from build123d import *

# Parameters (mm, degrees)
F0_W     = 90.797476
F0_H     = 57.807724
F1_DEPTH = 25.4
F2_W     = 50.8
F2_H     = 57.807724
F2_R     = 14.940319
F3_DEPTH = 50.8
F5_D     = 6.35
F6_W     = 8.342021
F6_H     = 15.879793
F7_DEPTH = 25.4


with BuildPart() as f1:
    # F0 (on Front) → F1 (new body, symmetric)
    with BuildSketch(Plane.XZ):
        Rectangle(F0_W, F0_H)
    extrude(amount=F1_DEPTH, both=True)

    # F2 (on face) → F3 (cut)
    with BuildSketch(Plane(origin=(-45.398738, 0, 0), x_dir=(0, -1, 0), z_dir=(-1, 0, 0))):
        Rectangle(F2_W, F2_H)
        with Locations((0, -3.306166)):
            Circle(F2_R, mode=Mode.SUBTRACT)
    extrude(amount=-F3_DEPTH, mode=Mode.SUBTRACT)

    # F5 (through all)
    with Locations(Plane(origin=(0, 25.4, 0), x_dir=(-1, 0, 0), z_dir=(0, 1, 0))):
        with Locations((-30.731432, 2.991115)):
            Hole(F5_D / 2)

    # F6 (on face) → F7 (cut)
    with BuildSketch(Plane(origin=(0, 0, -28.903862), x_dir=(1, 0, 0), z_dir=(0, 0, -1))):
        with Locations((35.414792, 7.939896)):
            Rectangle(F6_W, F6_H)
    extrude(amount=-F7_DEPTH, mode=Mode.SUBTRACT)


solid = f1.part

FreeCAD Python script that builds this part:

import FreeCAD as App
import Part
import Sketcher
Q = App.Units.Quantity

doc = App.newDocument("Part")
body = doc.addObject("PartDesign::Body", "Body")

# Sketch on XZ plane
sketch1 = doc.addObject("Sketcher::SketchObject", "Sketch")
body.addObject(sketch1)
sketch1.AttachmentSupport = (doc.XZ_Plane, [""])
sketch1.MapMode = "FlatFace"
sketch1.addGeometry([
    Part.LineSegment(App.Vector(-45, 29, 0), App.Vector(-45, -29, 0)),
    Part.LineSegment(App.Vector(-45, -29, 0), App.Vector(45, -29, 0)),
    Part.LineSegment(App.Vector(45, -29, 0), App.Vector(45, 29, 0)),
    Part.LineSegment(App.Vector(45, 29, 0), App.Vector(-45, 29, 0)),
], False)
sketch1.addConstraint([
    Sketcher.Constraint("Coincident", 0, 2, 1, 1),
    Sketcher.Constraint("Coincident", 1, 2, 2, 1),
    Sketcher.Constraint("Coincident", 2, 2, 3, 1),
    Sketcher.Constraint("Coincident", 3, 2, 0, 1),
    Sketcher.Constraint("Vertical", 0),
    Sketcher.Constraint("Horizontal", 1),
    Sketcher.Constraint("Vertical", 2),
    Sketcher.Constraint("Horizontal", 3),
    Sketcher.Constraint("Symmetric", 0, 2, 2, 2, -1, 1),
    Sketcher.Constraint("DistanceX", 1, 1, 1, 2, 90.797476),
    Sketcher.Constraint("DistanceY", 0, 2, 0, 1, 57.807724),
])
pad1 = doc.addObject("PartDesign::Pad", "Pad")
body.addObject(pad1)
pad1.Profile = sketch1
pad1.Length = Q("2 in")
pad1.Midplane = True

# Sketch on YZ plane
sketch2 = doc.addObject("Sketcher::SketchObject", "Sketch001")
body.addObject(sketch2)
sketch2.AttachmentSupport = (doc.YZ_Plane, [""])
sketch2.MapMode = "FlatFace"
sketch2.AttachmentOffset = App.Placement(App.Vector(0, 0, -45.398738), App.Rotation())
sketch2.addGeometry([
    Part.LineSegment(App.Vector(25, 29, 0), App.Vector(25, -29, 0)),  # 0
    Part.LineSegment(App.Vector(25, -29, 0), App.Vector(-25, -29, 0)),  # 1
    Part.LineSegment(App.Vector(-25, -29, 0), App.Vector(-25, 29, 0)),  # 2
    Part.LineSegment(App.Vector(-25, 29, 0), App.Vector(25, 29, 0)),  # 3
    Part.Circle(App.Vector(0, -3, 0), App.Vector(0, 0, 1), 15),  # 4
], False)
sketch2.addConstraint([
    Sketcher.Constraint("Coincident", 0, 2, 1, 1),
    Sketcher.Constraint("Coincident", 1, 2, 2, 1),
    Sketcher.Constraint("Coincident", 2, 2, 3, 1),
    Sketcher.Constraint("Coincident", 3, 2, 0, 1),
    Sketcher.Constraint("Vertical", 0),
    Sketcher.Constraint("Horizontal", 1),
    Sketcher.Constraint("Vertical", 2),
    Sketcher.Constraint("Horizontal", 3),
    Sketcher.Constraint("Symmetric", 0, 2, 2, 2, -1, 1),
    Sketcher.Constraint("PointOnObject", 4, 3, -2),
    Sketcher.Constraint("DistanceX", 1, 2, 1, 1, Q("2 in")),
    Sketcher.Constraint("Diameter", 4, 29.880638),
    Sketcher.Constraint("DistanceY", 0, 2, 0, 1, 57.807724),
    Sketcher.Constraint("DistanceY", 4, 3, -1, 1, 3.306166),
])
pocket1 = doc.addObject("PartDesign::Pocket", "Pocket")
body.addObject(pocket1)
pocket1.Profile = sketch2
pocket1.Length = Q("2 in")
pocket1.Reversed = True

# Sketch on XZ plane
sketch3 = doc.addObject("Sketcher::SketchObject", "Sketch002")
body.addObject(sketch3)
sketch3.AttachmentSupport = (doc.XZ_Plane, [""])
sketch3.MapMode = "FlatFace"
sketch3.AttachmentOffset = App.Placement(App.Vector(0, 0, -1 * 25.4), App.Rotation())
sketch3.addGeometry(Part.Circle(App.Vector(30.7, 3, 0), App.Vector(0, 0, 1), 3.2), False)
sketch3.addConstraint([
    Sketcher.Constraint("Diameter", 0, Q("0.25 in")),
    Sketcher.Constraint("DistanceX", -1, 1, 0, 3, 30.731432),
    Sketcher.Constraint("DistanceY", -1, 1, 0, 3, 2.991115),
])
doc.recompute()
hole = doc.addObject("PartDesign::Hole", "Hole")
body.addObject(hole)
hole.Profile = sketch3
hole.ThreadType = "None"
hole.Diameter = Q("0.25 in")
hole.DepthType = "ThroughAll"
hole.Reversed = True

# Sketch on XY plane
sketch4 = doc.addObject("Sketcher::SketchObject", "Sketch003")
body.addObject(sketch4)
sketch4.AttachmentSupport = (doc.XY_Plane, [""])
sketch4.MapMode = "FlatFace"
sketch4.AttachmentOffset = App.Placement(App.Vector(0, 0, -28.903862), App.Rotation())
sketch4.addGeometry([
    Part.LineSegment(App.Vector(31, -16, 0), App.Vector(31, 0, 0)),
    Part.LineSegment(App.Vector(31, 0, 0), App.Vector(40, 0, 0)),
    Part.LineSegment(App.Vector(40, 0, 0), App.Vector(40, -16, 0)),
    Part.LineSegment(App.Vector(40, -16, 0), App.Vector(31, -16, 0)),
], False)
sketch4.addConstraint([
    Sketcher.Constraint("Coincident", 0, 2, 1, 1),
    Sketcher.Constraint("Coincident", 1, 2, 2, 1),
    Sketcher.Constraint("Coincident", 2, 2, 3, 1),
    Sketcher.Constraint("Coincident", 3, 2, 0, 1),
    Sketcher.Constraint("Vertical", 0),
    Sketcher.Constraint("Horizontal", 1),
    Sketcher.Constraint("Vertical", 2),
    Sketcher.Constraint("Horizontal", 3),
    Sketcher.Constraint("PointOnObject", 0, 2, -1),
    Sketcher.Constraint("DistanceX", 1, 1, 1, 2, 8.342021),
    Sketcher.Constraint("DistanceY", 0, 1, 0, 2, 15.879793),
    Sketcher.Constraint("DistanceX", -1, 1, 0, 2, 31.243782),
])
pocket2 = doc.addObject("PartDesign::Pocket", "Pocket001")
body.addObject(pocket2)
pocket2.Profile = sketch4
pocket2.Length = Q("1 in")
pocket2.Reversed = True

doc.recompute()
